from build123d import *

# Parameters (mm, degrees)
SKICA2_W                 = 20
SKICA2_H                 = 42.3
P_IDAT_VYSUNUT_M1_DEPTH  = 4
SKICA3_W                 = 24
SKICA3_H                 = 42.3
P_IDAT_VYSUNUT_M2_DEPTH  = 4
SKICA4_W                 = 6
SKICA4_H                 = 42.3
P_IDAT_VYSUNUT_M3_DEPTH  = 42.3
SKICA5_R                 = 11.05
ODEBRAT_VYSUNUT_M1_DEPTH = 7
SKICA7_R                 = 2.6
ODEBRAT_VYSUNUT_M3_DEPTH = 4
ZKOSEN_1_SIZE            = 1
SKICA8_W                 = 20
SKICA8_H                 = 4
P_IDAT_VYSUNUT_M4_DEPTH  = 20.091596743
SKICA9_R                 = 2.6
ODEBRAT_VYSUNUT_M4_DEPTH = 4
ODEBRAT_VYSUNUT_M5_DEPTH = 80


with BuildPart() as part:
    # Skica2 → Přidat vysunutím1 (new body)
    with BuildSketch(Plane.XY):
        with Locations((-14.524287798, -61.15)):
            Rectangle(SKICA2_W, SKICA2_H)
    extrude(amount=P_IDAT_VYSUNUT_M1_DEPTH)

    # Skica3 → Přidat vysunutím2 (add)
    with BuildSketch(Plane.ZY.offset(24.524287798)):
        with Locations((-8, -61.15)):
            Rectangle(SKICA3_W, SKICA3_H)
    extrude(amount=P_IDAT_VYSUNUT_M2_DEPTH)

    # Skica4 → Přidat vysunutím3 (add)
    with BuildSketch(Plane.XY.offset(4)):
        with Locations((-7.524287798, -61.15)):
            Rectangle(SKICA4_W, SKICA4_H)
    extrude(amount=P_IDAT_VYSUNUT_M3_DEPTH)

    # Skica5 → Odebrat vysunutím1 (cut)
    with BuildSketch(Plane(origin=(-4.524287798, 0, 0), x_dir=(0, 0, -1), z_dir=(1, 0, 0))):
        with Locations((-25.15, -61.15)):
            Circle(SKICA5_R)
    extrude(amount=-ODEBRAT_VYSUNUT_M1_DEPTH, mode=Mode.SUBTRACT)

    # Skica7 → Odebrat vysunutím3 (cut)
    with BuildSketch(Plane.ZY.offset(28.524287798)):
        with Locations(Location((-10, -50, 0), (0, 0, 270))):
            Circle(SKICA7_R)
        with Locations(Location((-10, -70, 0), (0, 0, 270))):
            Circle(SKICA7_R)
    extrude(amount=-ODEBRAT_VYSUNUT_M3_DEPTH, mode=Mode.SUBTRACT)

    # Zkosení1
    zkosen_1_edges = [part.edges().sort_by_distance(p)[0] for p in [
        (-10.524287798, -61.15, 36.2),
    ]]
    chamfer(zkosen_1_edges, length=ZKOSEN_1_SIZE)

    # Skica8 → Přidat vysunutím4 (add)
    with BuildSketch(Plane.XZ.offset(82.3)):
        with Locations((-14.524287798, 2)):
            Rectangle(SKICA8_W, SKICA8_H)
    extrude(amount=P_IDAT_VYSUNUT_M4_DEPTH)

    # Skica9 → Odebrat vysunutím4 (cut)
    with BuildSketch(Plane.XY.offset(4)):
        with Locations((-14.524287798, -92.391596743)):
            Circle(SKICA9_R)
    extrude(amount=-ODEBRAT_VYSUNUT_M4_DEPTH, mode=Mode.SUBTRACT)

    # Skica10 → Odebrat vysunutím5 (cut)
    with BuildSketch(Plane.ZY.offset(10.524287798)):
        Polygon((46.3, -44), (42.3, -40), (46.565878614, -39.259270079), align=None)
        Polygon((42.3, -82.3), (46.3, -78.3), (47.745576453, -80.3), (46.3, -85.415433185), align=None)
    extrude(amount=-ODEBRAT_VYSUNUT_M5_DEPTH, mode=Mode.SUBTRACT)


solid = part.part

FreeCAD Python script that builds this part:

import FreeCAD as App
import Part
import Sketcher

V = App.Vector
Q = App.Units.Quantity


def edges_at(feature, points):
    """Names of the edges that pass closest to the given points."""
    edges = feature.Shape.Edges
    near = lambda p: min(range(len(edges)), key=lambda i: edges[i].distToShape(Part.Vertex(*p))[0])
    return sorted({f"Edge{near(p) + 1}" for p in points})

doc = App.newDocument("Part")
body = doc.addObject("PartDesign::Body", "Body")

sketch1 = body.newObject("Sketcher::SketchObject", "Sketch")
sketch1.AttachmentSupport = (doc.getObject("XY_Plane"), [""])
sketch1.MapMode = "FlatFace"
sketch1.addGeometry(Part.LineSegment(V(-25, -40, 0), V(-25, -82, 0)), False)
sketch1.addGeometry(Part.LineSegment(V(-25, -82, 0), V(-5, -82, 0)), False)
sketch1.addGeometry(Part.LineSegment(V(-5, -82, 0), V(-5, -40, 0)), False)
sketch1.addGeometry(Part.LineSegment(V(-5, -40, 0), V(-25, -40, 0)), False)
sketch1.addConstraint(Sketcher.Constraint("Coincident", 0, 2, 1, 1))
sketch1.addConstraint(Sketcher.Constraint("Coincident", 1, 2, 2, 1))
sketch1.addConstraint(Sketcher.Constraint("Coincident", 2, 2, 3, 1))
sketch1.addConstraint(Sketcher.Constraint("Coincident", 3, 2, 0, 1))
sketch1.addConstraint(Sketcher.Constraint("Vertical", 0))
sketch1.addConstraint(Sketcher.Constraint("Horizontal", 1))
sketch1.addConstraint(Sketcher.Constraint("Vertical", 2))
sketch1.addConstraint(Sketcher.Constraint("Horizontal", 3))
sketch1.addConstraint(Sketcher.Constraint("DistanceX", 1, 1, 1, 2, Q("20 mm")))
sketch1.addConstraint(Sketcher.Constraint("DistanceY", 0, 2, 0, 1, Q("42.3 mm")))
sketch1.addConstraint(Sketcher.Constraint("DistanceY", 2, 2, -1, 1, Q("40 mm")))
sketch1.addConstraint(Sketcher.Constraint("DistanceX", 0, 2, -1, 1, Q("24.524288 mm")))
pad1 = body.newObject("PartDesign::Pad", "Pad")
pad1.Profile = sketch1
pad1.Length = 4

sketch2 = body.newObject("Sketcher::SketchObject", "Sketch001")
sketch2.AttachmentSupport = (doc.getObject("YZ_Plane"), [""])
sketch2.MapMode = "FlatFace"
sketch2.AttachmentOffset = App.Placement(V(0, 0, -24.524288), App.Rotation())
sketch2.addGeometry(Part.LineSegment(V(-40, -20, 0), V(-82, -20, 0)), False)
sketch2.addGeometry(Part.LineSegment(V(-82, -20, 0), V(-82, 4, 0)), False)
sketch2.addGeometry(Part.LineSegment(V(-82, 4, 0), V(-40, 4, 0)), False)
sketch2.addGeometry(Part.LineSegment(V(-40, 4, 0), V(-40, -20, 0)), False)
sketch2.addConstraint(Sketcher.Constraint("Coincident", 0, 2, 1, 1))
sketch2.addConstraint(Sketcher.Constraint("Coincident", 1, 2, 2, 1))
sketch2.addConstraint(Sketcher.Constraint("Coincident", 2, 2, 3, 1))
sketch2.addConstraint(Sketcher.Constraint("Coincident", 3, 2, 0, 1))
sketch2.addConstraint(Sketcher.Constraint("Horizontal", 0))
sketch2.addConstraint(Sketcher.Constraint("Vertical", 1))
sketch2.addConstraint(Sketcher.Constraint("Horizontal", 2))
sketch2.addConstraint(Sketcher.Constraint("Vertical", 3))
sketch2.addConstraint(Sketcher.Constraint("DistanceY", 1, 1, 1, 2, Q("24 mm")))
sketch2.addConstraint(Sketcher.Constraint("DistanceX", 0, 2, 0, 1, Q("42.3 mm")))
sketch2.addConstraint(Sketcher.Constraint("DistanceY", 0, 2, -1, 1, Q("20 mm")))
sketch2.addConstraint(Sketcher.Constraint("DistanceX", 2, 2, -1, 1, Q("40 mm")))
pad2 = body.newObject("PartDesign::Pad", "Pad001")
pad2.Profile = sketch2
pad2.Length = 4
pad2.Reversed = True

sketch3 = body.newObject("Sketcher::SketchObject", "Sketch002")
sketch3.AttachmentSupport = (doc.getObject("XY_Plane"), [""])
sketch3.MapMode = "FlatFace"
sketch3.AttachmentOffset = App.Placement(V(0, 0, 4), App.Rotation())
sketch3.addGeometry(Part.LineSegment(V(-11, -40, 0), V(-11, -82, 0)), False)
sketch3.addGeometry(Part.LineSegment(V(-11, -82, 0), V(-5, -82, 0)), False)
sketch3.addGeometry(Part.LineSegment(V(-5, -82, 0), V(-5, -40, 0)), False)
sketch3.addGeometry(Part.LineSegment(V(-5, -40, 0), V(-11, -40, 0)), False)
sketch3.addConstraint(Sketcher.Constraint("Coincident", 0, 2, 1, 1))
sketch3.addConstraint(Sketcher.Constraint("Coincident", 1, 2, 2, 1))
sketch3.addConstraint(Sketcher.Constraint("Coincident", 2, 2, 3, 1))
sketch3.addConstraint(Sketcher.Constraint("Coincident", 3, 2, 0, 1))
sketch3.addConstraint(Sketcher.Constraint("Vertical", 0))
sketch3.addConstraint(Sketcher.Constraint("Horizontal", 1))
sketch3.addConstraint(Sketcher.Constraint("Vertical", 2))
sketch3.addConstraint(Sketcher.Constraint("Horizontal", 3))
sketch3.addConstraint(Sketcher.Constraint("DistanceX", 1, 1, 1, 2, Q("6 mm")))
sketch3.addConstraint(Sketcher.Constraint("DistanceY", 0, 2, 0, 1, Q("42.3 mm")))
sketch3.addConstraint(Sketcher.Constraint("DistanceY", 2, 2, -1, 1, Q("40 mm")))
sketch3.addConstraint(Sketcher.Constraint("DistanceX", 0, 2, -1, 1, Q("10.524288 mm")))
pad3 = body.newObject("PartDesign::Pad", "Pad002")
pad3.Profile = sketch3
pad3.Length = 42.3

sketch4 = body.newObject("Sketcher::SketchObject", "Sketch003")
sketch4.AttachmentSupport = (doc.getObject("YZ_Plane"), [""])
sketch4.MapMode = "FlatFace"
sketch4.AttachmentOffset = App.Placement(V(0, 0, -4.524288), App.Rotation())
sketch4.addGeometry(Part.Circle(V(-61, 25, 0), V(0, 0, 1), 11), False)
sketch4.addConstraint(Sketcher.Constraint("Diameter", 0, Q("22.1 mm")))
sketch4.addConstraint(Sketcher.Constraint("DistanceX", 0, 3, -1, 1, Q("61.15 mm")))
sketch4.addConstraint(Sketcher.Constraint("DistanceY", -1, 1, 0, 3, Q("25.15 mm")))
pocket1 = body.newObject("PartDesign::Pocket", "Pocket")
pocket1.Profile = sketch4
pocket1.Length = 7

sketch5 = body.newObject("Sketcher::SketchObject", "Sketch004")
sketch5.AttachmentSupport = (doc.getObject("YZ_Plane"), [""])
sketch5.MapMode = "FlatFace"
sketch5.AttachmentOffset = App.Placement(V(0, 0, -28.524288), App.Rotation())
sketch5.addGeometry(Part.Circle(V(-50, -10, 0), V(0, 0, 1), 2.6), False)
sketch5.addGeometry(Part.Circle(V(-70, -10, 0), V(0, 0, 1), 2.6), False)
sketch5.addConstraint(Sketcher.Constraint("Equal", 0, 1))
sketch5.addConstraint(Sketcher.Constraint("Horizontal", 0, 3, 1, 3))
sketch5.addConstraint(Sketcher.Constraint("Diameter", 0, Q("5.2 mm")))
sketch5.addConstraint(Sketcher.Constraint("DistanceX", 0, 3, -1, 1, Q("50 mm")))
sketch5.addConstraint(Sketcher.Constraint("DistanceY", 0, 3, -1, 1, Q("10 mm")))
sketch5.addConstraint(Sketcher.Constraint("DistanceX", 1, 3, -1, 1, Q("70 mm")))
pocket2 = body.newObject("PartDesign::Pocket", "Pocket001")
pocket2.Profile = sketch5
pocket2.Length = 4
pocket2.Reversed = True
doc.recompute()

chamfer = body.newObject("PartDesign::Chamfer", "Chamfer")
chamfer.Base = (pocket2, edges_at(pocket2, [(-10.524, -61.15, 36.2)]))
chamfer.Size = 1

sketch6 = body.newObject("Sketcher::SketchObject", "Sketch005")
sketch6.AttachmentSupport = (doc.getObject("XZ_Plane"), [""])
sketch6.MapMode = "FlatFace"
sketch6.AttachmentOffset = App.Placement(V(0, 0, 82.3), App.Rotation())
sketch6.addGeometry(Part.LineSegment(V(-24.5, 4, 0), V(-24.5, 0, 0)), False)
sketch6.addGeometry(Part.LineSegment(V(-24.5, 0, 0), V(-4.5, 0, 0)), False)
sketch6.addGeometry(Part.LineSegment(V(-4.5, 0, 0), V(-4.5, 4, 0)), False)
sketch6.addGeometry(Part.LineSegment(V(-4.5, 4, 0), V(-24.5, 4, 0)), False)
sketch6.addConstraint(Sketcher.Constraint("Coincident", 0, 2, 1, 1))
sketch6.addConstraint(Sketcher.Constraint("Coincident", 1, 2, 2, 1))
sketch6.addConstraint(Sketcher.Constraint("Coincident", 2, 2, 3, 1))
sketch6.addConstraint(Sketcher.Constraint("Coincident", 3, 2, 0, 1))
sketch6.addConstraint(Sketcher.Constraint("Vertical", 0))
sketch6.addConstraint(Sketcher.Constraint("Horizontal", 1))
sketch6.addConstraint(Sketcher.Constraint("Vertical", 2))
sketch6.addConstraint(Sketcher.Constraint("Horizontal", 3))
sketch6.addConstraint(Sketcher.Constraint("PointOnObject", 0, 2, -1))
sketch6.addConstraint(Sketcher.Constraint("DistanceX", 1, 1, 1, 2, Q("20 mm")))
sketch6.addConstraint(Sketcher.Constraint("DistanceY", 0, 2, 0, 1, Q("4 mm")))
sketch6.addConstraint(Sketcher.Constraint("DistanceX", 0, 2, -1, 1, Q("24.524288 mm")))
pad4 = body.newObject("PartDesign::Pad", "Pad003")
pad4.Profile = sketch6
pad4.Length = 20.091597

sketch7 = body.newObject("Sketcher::SketchObject", "Sketch006")
sketch7.AttachmentSupport = (doc.getObject("XY_Plane"), [""])
sketch7.MapMode = "FlatFace"
sketch7.AttachmentOffset = App.Placement(V(0, 0, 4), App.Rotation())
sketch7.addGeometry(Part.Circle(V(-14.5, -92.4, 0), V(0, 0, 1), 2.6), False)
sketch7.addConstraint(Sketcher.Constraint("Diameter", 0, Q("5.2 mm")))
sketch7.addConstraint(Sketcher.Constraint("DistanceX", 0, 3, -1, 1, Q("14.524288 mm")))
sketch7.addConstraint(Sketcher.Constraint("DistanceY", 0, 3, -1, 1, Q("92.391597 mm")))
pocket3 = body.newObject("PartDesign::Pocket", "Pocket002")
pocket3.Profile = sketch7
pocket3.Length = 4

sketch8 = body.newObject("Sketcher::SketchObject", "Sketch007")
sketch8.AttachmentSupport = (doc.getObject("YZ_Plane"), [""])
sketch8.MapMode = "FlatFace"
sketch8.AttachmentOffset = App.Placement(V(0, 0, -10.524288), App.Rotation())
sketch8.addGeometry(Part.LineSegment(V(-40, 42.3, 0), V(-44, 46.3, 0)), False)
sketch8.addGeometry(Part.LineSegment(V(-44, 46.3, 0), V(-39.3, 46.6, 0)), False)
sketch8.addGeometry(Part.LineSegment(V(-39.3, 46.6, 0), V(-40, 42.3, 0)), False)
sketch8.addGeometry(Part.LineSegment(V(-78.3, 46.3, 0), V(-82.3, 42.3, 0)), False)
sketch8.addGeometry(Part.LineSegment(V(-82.3, 42.3, 0), V(-85.4, 46.3, 0)), False)
sketch8.addGeometry(Part.LineSegment(V(-85.4, 46.3, 0), V(-80.3, 47.7, 0)), False)
sketch8.addGeometry(Part.LineSegment(V(-80.3, 47.7, 0), V(-78.3, 46.3, 0)), False)
sketch8.addConstraint(Sketcher.Constraint("Coincident", 0, 2, 1, 1))
sketch8.addConstraint(Sketcher.Constraint("Coincident", 1, 2, 2, 1))
sketch8.addConstraint(Sketcher.Constraint("Coincident", 2, 2, 0, 1))
sketch8.addConstraint(Sketcher.Constraint("Coincident", 3, 2, 4, 1))
sketch8.addConstraint(Sketcher.Constraint("Coincident", 4, 2, 5, 1))
sketch8.addConstraint(Sketcher.Constraint("Coincident", 5, 2, 6, 1))
sketch8.addConstraint(Sketcher.Constraint("Coincident", 6, 2, 3, 1))
sketch8.addConstraint(Sketcher.Constraint("Perpendicular", 0, 3))
sketch8.addConstraint(Sketcher.Constraint("Horizontal", 2, 2, 3, 2))
sketch8.addConstraint(Sketcher.Constraint("Horizontal", 0, 2, 4, 2))
sketch8.addConstraint(Sketcher.Constraint("Horizontal", 4, 2, 6, 2))
sketch8.addConstraint(Sketcher.Constraint("Equal", 0, 3))
sketch8.addConstraint(Sketcher.Constraint("DistanceX", 0, 2, -1, 1, Q("44 mm")))
sketch8.addConstraint(Sketcher.Constraint("DistanceX", 2, 2, -1, 1, Q("40 mm")))
sketch8.addConstraint(Sketcher.Constraint("DistanceX", 3, 2, 5, 2, Q("2 mm")))
sketch8.addConstraint(Sketcher.Constraint("DistanceY", -1, 1, 0, 2, Q("46.3 mm")))
sketch8.addConstraint(Sketcher.Constraint("DistanceX", 3, 2, -1, 1, Q("82.3 mm")))
sketch8.addConstraint(Sketcher.Constraint("Angle", 1, Q("3.210008 deg")))
sketch8.addConstraint(Sketcher.Constraint("Distance", 4, Q("5.070101 mm")))
sketch8.addConstraint(Sketcher.Constraint("Distance", 1, Q("4.74818 mm")))
sketch8.addConstraint(Sketcher.Constraint("Distance", 6, Q("2.46773 mm")))
pocket4 = body.newObject("PartDesign::Pocket", "Pocket003")
pocket4.Profile = sketch8
pocket4.Length = 80
pocket4.Reversed = True

doc.recompute()
